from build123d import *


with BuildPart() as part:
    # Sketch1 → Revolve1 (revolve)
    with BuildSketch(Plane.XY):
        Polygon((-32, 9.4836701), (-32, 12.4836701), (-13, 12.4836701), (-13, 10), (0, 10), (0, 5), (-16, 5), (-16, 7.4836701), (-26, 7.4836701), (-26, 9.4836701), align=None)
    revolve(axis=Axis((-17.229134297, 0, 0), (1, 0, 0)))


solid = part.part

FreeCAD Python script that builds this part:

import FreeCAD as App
import Part
import Sketcher

doc = App.newDocument("Part")
body = doc.addObject("PartDesign::Body", "Body")

sketch1 = body.newObject("Sketcher::SketchObject", "Sketch")
sketch1.AttachmentSupport = (doc.getObject("XY_Plane"), [""])
sketch1.MapMode = "FlatFace"
sketch1.addGeometry(Part.LineSegment(App.Vector(-32, 12.48367, 0), App.Vector(-32, 9.48367, 0)), False)
sketch1.addGeometry(Part.LineSegment(App.Vector(-32, 9.48367, 0), App.Vector(-26, 9.48367, 0)), False)
sketch1.addGeometry(Part.LineSegment(App.Vector(-26, 9.48367, 0), App.Vector(-26, 7.48367, 0)), False)
sketch1.addGeometry(Part.LineSegment(App.Vector(-26, 7.48367, 0), App.Vector(-16, 7.48367, 0)), False)
sketch1.addGeometry(Part.LineSegment(App.Vector(-16, 7.48367, 0), App.Vector(-16, 5, 0)), False)
sketch1.addGeometry(Part.LineSegment(App.Vector(-16, 5, 0), App.Vector(0, 5, 0)), False)
sketch1.addGeometry(Part.LineSegment(App.Vector(0, 5, 0), App.Vector(0, 10, 0)), False)
sketch1.addGeometry(Part.LineSegment(App.Vector(0, 10, 0), App.Vector(-13, 10, 0)), False)
sketch1.addGeometry(Part.LineSegment(App.Vector(-13, 10, 0), App.Vector(-13, 12.48367, 0)), False)
sketch1.addGeometry(Part.LineSegment(App.Vector(-13, 12.48367, 0), App.Vector(-32, 12.48367, 0)), False)
sketch1.addConstraint(Sketcher.Constraint("Coincident", 0, 2, 1, 1))
sketch1.addConstraint(Sketcher.Constraint("Coincident", 1, 2, 2, 1))
sketch1.addConstraint(Sketcher.Constraint("Coincident", 2, 2, 3, 1))
sketch1.addConstraint(Sketcher.Constraint("Coincident", 3, 2, 4, 1))
sketch1.addConstraint(Sketcher.Constraint("Coincident", 4, 2, 5, 1))
sketch1.addConstraint(Sketcher.Constraint("Coincident", 5, 2, 6, 1))
sketch1.addConstraint(Sketcher.Constraint("Coincident", 6, 2, 7, 1))
sketch1.addConstraint(Sketcher.Constraint("Coincident", 7, 2, 8, 1))
sketch1.addConstraint(Sketcher.Constraint("Coincident", 8, 2, 9, 1))
sketch1.addConstraint(Sketcher.Constraint("Coincident", 9, 2, 0, 1))
sketch1.addConstraint(Sketcher.Constraint("Vertical", 0))
sketch1.addConstraint(Sketcher.Constraint("Horizontal", 1))
sketch1.addConstraint(Sketcher.Constraint("Vertical", 2))
sketch1.addConstraint(Sketcher.Constraint("Horizontal", 3))
sketch1.addConstraint(Sketcher.Constraint("Vertical", 4))
sketch1.addConstraint(Sketcher.Constraint("Horizontal", 5))
sketch1.addConstraint(Sketcher.Constraint("Vertical", 6))
sketch1.addConstraint(Sketcher.Constraint("Horizontal", 7))
sketch1.addConstraint(Sketcher.Constraint("Vertical", 8))
sketch1.addConstraint(Sketcher.Constraint("Horizontal", 9))
sketch1.addConstraint(Sketcher.Constraint("PointOnObject", 5, 2, -2))
sketch1.addConstraint(Sketcher.Constraint("Equal", 4, 8))
sketch1.addConstraint(Sketcher.Constraint("DistanceX", 1, 1, 1, 2, 6.0))
sketch1.addConstraint(Sketcher.Constraint("DistanceX", 3, 1, 3, 2, 10.0))
sketch1.addConstraint(Sketcher.Constraint("DistanceX", 5, 1, 5, 2, 16.0))
sketch1.addConstraint(Sketcher.Constraint("DistanceX", 7, 2, 7, 1, 13.0))
sketch1.addConstraint(Sketcher.Constraint("DistanceY", 0, 2, 0, 1, 3.0))
sketch1.addConstraint(Sketcher.Constraint("DistanceY", 2, 2, 2, 1, 2.0))
sketch1.addConstraint(Sketcher.Constraint("DistanceY", -1, 1, 4, 2, 5.0))
sketch1.addConstraint(Sketcher.Constraint("DistanceY", 4, 2, 4, 1, 2.48367))
revolution = body.newObject("PartDesign::Revolution", "Revolution")
revolution.Profile = sketch1
revolution.ReferenceAxis = (sketch1, ["H_Axis"])
revolution.Angle = 360

doc.recompute()
